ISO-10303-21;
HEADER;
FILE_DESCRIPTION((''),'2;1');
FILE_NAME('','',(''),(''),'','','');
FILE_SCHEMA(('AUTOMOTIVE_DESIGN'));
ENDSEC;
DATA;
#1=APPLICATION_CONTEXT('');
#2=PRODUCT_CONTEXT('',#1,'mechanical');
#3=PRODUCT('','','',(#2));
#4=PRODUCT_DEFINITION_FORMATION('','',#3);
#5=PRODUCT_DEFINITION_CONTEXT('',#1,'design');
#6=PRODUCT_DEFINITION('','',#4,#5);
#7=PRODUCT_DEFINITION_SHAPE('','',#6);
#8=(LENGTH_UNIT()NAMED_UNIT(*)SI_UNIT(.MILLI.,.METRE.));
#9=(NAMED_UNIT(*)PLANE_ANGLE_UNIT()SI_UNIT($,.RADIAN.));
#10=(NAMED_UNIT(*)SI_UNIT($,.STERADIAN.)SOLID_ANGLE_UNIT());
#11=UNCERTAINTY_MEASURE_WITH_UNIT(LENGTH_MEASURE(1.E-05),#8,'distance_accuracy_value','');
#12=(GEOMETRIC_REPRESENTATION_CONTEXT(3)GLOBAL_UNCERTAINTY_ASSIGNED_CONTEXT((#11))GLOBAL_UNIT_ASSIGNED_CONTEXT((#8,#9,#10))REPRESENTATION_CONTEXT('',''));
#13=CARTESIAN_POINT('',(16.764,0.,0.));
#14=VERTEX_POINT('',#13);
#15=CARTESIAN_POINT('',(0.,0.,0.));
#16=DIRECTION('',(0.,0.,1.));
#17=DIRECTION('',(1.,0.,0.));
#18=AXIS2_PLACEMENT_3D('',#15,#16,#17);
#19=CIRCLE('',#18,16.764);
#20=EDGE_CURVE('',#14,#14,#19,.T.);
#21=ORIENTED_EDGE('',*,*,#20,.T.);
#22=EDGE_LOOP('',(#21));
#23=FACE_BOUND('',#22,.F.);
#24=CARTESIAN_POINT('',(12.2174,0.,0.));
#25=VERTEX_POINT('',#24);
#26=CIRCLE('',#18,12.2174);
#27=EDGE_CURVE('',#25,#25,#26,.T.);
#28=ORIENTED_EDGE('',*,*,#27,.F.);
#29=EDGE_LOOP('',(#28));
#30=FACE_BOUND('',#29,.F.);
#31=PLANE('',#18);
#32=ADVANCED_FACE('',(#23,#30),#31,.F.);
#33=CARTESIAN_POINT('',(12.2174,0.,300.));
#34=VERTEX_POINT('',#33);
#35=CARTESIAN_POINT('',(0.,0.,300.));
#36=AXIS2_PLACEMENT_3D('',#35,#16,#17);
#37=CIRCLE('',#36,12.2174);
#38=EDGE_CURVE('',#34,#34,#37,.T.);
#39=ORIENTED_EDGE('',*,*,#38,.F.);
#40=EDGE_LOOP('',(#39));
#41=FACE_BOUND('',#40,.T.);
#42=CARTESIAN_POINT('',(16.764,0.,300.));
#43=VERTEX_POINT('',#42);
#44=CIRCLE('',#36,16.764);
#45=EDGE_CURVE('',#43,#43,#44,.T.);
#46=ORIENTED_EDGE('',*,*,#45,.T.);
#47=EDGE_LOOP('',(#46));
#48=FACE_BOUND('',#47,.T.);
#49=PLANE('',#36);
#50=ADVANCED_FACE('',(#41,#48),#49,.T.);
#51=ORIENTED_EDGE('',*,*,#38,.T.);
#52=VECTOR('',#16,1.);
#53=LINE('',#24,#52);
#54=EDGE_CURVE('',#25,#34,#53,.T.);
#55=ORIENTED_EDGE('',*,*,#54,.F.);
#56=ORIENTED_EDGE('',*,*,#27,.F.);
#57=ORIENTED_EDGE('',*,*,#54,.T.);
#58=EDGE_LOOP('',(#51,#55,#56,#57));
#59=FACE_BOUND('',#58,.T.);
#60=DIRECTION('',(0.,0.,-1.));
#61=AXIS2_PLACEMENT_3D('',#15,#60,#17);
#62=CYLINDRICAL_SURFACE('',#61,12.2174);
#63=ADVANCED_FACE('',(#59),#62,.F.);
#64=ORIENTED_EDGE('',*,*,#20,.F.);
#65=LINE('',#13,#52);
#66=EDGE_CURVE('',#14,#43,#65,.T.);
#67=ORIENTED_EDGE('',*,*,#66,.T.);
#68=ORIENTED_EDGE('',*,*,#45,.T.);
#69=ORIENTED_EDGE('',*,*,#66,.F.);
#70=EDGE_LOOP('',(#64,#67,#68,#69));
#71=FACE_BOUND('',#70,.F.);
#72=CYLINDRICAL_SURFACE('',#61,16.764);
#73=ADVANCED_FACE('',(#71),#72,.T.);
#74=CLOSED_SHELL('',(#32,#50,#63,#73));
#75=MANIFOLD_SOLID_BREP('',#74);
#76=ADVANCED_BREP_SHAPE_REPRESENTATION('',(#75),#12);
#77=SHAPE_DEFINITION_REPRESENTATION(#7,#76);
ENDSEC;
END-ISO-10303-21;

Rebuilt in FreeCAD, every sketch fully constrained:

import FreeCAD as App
import Part
import Sketcher

V = App.Vector
Q = App.Units.Quantity

doc = App.newDocument("Part")
body = doc.addObject("PartDesign::Body", "Body")

sketch1 = body.newObject("Sketcher::SketchObject", "Sketch")
sketch1.AttachmentSupport = (doc.getObject("XY_Plane"), [""])
sketch1.MapMode = "FlatFace"
sketch1.addGeometry([
    Part.Circle(V(0, 0, 0), V(0, 0, 1), 17),
    Part.Circle(V(0, 0, 0), V(0, 0, 1), 12),
], False)
sketch1.addConstraint([
    Sketcher.Constraint("Coincident", 0, 3, -1, 1),
    Sketcher.Constraint("Coincident", 1, 3, -1, 1),
    Sketcher.Constraint("Diameter", 0, Q("1.32 in")),
    Sketcher.Constraint("Diameter", 1, Q("0.962 in")),
])
pad1 = body.newObject("PartDesign::Pad", "Pad")
pad1.Profile = sketch1
pad1.Length = 300

doc.recompute()
